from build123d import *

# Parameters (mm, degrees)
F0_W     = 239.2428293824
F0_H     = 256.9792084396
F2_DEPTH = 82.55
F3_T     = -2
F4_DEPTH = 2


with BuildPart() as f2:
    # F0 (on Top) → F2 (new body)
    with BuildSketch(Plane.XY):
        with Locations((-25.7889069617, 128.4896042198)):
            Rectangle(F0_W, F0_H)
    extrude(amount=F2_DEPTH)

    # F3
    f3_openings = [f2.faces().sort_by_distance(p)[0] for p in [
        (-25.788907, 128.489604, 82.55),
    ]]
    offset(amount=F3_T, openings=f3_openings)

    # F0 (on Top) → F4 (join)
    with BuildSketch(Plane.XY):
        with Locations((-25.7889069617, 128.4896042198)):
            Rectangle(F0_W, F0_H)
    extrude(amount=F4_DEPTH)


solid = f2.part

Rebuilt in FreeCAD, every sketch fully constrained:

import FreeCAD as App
import Part
import Sketcher

V = App.Vector


def faces_at(feature, points):
    """Names of the faces that lie closest to the given points."""
    faces = feature.Shape.Faces
    near = lambda p: min(range(len(faces)), key=lambda i: faces[i].distToShape(Part.Vertex(*p))[0])
    return sorted({f"Face{near(p) + 1}" for p in points})

doc = App.newDocument("Part")
body = doc.addObject("PartDesign::Body", "Body")

sketch1 = body.newObject("Sketcher::SketchObject", "Sketch")
sketch1.AttachmentSupport = (doc.getObject("XY_Plane"), [""])
sketch1.MapMode = "FlatFace"
sketch1.addGeometry([
    Part.LineSegment(V(-145.410322, 256.979208, 0), V(-145.410322, 0, 0)),
    Part.LineSegment(V(-145.410322, 0, 0), V(93.832508, 0, 0)),
    Part.LineSegment(V(93.832508, 0, 0), V(93.832508, 256.979208, 0)),
    Part.LineSegment(V(93.832508, 256.979208, 0), V(-145.410322, 256.979208, 0)),
], False)
sketch1.addConstraint([
    Sketcher.Constraint("Coincident", 0, 2, 1, 1),
    Sketcher.Constraint("Coincident", 1, 2, 2, 1),
    Sketcher.Constraint("Coincident", 2, 2, 3, 1),
    Sketcher.Constraint("Coincident", 3, 2, 0, 1),
    Sketcher.Constraint("Vertical", 0),
    Sketcher.Constraint("Horizontal", 1),
    Sketcher.Constraint("Vertical", 2),
    Sketcher.Constraint("Horizontal", 3),
    Sketcher.Constraint("PointOnObject", 0, 2, -1),
    Sketcher.Constraint("DistanceX", 1, 1, 1, 2, 239.242829),
    Sketcher.Constraint("DistanceY", 0, 2, 0, 1, 256.979208),
    Sketcher.Constraint("DistanceX", 0, 2, -1, 1, 145.410322),
])
pad1 = body.newObject("PartDesign::Pad", "Pad")
pad1.Profile = sketch1
pad1.Length = 82.55
doc.recompute()

thickness = body.newObject("PartDesign::Thickness", "Thickness")
thickness.Base = (pad1, faces_at(pad1, [(-25.789, 128.49, 82.55)]))
thickness.Value = 2
thickness.Reversed = True
thickness.Join = "Arc"

sketch2 = body.newObject("Sketcher::SketchObject", "Sketch001")
sketch2.AttachmentSupport = (doc.getObject("XY_Plane"), [""])
sketch2.MapMode = "FlatFace"
sketch2.addGeometry([
    Part.LineSegment(V(-145.410322, 256.979208, 0), V(-145.410322, 0, 0)),
    Part.LineSegment(V(-145.410322, 0, 0), V(93.832508, 0, 0)),
    Part.LineSegment(V(93.832508, 0, 0), V(93.832508, 256.979208, 0)),
    Part.LineSegment(V(93.832508, 256.979208, 0), V(-145.410322, 256.979208, 0)),
], False)
sketch2.addConstraint([
    Sketcher.Constraint("Coincident", 0, 2, 1, 1),
    Sketcher.Constraint("Coincident", 1, 2, 2, 1),
    Sketcher.Constraint("Coincident", 2, 2, 3, 1),
    Sketcher.Constraint("Coincident", 3, 2, 0, 1),
    Sketcher.Constraint("Vertical", 0),
    Sketcher.Constraint("Horizontal", 1),
    Sketcher.Constraint("Vertical", 2),
    Sketcher.Constraint("Horizontal", 3),
    Sketcher.Constraint("PointOnObject", 0, 2, -1),
    Sketcher.Constraint("DistanceX", 1, 1, 1, 2, 239.242829),
    Sketcher.Constraint("DistanceY", 0, 2, 0, 1, 256.979208),
    Sketcher.Constraint("DistanceX", 0, 2, -1, 1, 145.410322),
])
pad2 = body.newObject("PartDesign::Pad", "Pad001")
pad2.Profile = sketch2
pad2.Length = 2

doc.recompute()
